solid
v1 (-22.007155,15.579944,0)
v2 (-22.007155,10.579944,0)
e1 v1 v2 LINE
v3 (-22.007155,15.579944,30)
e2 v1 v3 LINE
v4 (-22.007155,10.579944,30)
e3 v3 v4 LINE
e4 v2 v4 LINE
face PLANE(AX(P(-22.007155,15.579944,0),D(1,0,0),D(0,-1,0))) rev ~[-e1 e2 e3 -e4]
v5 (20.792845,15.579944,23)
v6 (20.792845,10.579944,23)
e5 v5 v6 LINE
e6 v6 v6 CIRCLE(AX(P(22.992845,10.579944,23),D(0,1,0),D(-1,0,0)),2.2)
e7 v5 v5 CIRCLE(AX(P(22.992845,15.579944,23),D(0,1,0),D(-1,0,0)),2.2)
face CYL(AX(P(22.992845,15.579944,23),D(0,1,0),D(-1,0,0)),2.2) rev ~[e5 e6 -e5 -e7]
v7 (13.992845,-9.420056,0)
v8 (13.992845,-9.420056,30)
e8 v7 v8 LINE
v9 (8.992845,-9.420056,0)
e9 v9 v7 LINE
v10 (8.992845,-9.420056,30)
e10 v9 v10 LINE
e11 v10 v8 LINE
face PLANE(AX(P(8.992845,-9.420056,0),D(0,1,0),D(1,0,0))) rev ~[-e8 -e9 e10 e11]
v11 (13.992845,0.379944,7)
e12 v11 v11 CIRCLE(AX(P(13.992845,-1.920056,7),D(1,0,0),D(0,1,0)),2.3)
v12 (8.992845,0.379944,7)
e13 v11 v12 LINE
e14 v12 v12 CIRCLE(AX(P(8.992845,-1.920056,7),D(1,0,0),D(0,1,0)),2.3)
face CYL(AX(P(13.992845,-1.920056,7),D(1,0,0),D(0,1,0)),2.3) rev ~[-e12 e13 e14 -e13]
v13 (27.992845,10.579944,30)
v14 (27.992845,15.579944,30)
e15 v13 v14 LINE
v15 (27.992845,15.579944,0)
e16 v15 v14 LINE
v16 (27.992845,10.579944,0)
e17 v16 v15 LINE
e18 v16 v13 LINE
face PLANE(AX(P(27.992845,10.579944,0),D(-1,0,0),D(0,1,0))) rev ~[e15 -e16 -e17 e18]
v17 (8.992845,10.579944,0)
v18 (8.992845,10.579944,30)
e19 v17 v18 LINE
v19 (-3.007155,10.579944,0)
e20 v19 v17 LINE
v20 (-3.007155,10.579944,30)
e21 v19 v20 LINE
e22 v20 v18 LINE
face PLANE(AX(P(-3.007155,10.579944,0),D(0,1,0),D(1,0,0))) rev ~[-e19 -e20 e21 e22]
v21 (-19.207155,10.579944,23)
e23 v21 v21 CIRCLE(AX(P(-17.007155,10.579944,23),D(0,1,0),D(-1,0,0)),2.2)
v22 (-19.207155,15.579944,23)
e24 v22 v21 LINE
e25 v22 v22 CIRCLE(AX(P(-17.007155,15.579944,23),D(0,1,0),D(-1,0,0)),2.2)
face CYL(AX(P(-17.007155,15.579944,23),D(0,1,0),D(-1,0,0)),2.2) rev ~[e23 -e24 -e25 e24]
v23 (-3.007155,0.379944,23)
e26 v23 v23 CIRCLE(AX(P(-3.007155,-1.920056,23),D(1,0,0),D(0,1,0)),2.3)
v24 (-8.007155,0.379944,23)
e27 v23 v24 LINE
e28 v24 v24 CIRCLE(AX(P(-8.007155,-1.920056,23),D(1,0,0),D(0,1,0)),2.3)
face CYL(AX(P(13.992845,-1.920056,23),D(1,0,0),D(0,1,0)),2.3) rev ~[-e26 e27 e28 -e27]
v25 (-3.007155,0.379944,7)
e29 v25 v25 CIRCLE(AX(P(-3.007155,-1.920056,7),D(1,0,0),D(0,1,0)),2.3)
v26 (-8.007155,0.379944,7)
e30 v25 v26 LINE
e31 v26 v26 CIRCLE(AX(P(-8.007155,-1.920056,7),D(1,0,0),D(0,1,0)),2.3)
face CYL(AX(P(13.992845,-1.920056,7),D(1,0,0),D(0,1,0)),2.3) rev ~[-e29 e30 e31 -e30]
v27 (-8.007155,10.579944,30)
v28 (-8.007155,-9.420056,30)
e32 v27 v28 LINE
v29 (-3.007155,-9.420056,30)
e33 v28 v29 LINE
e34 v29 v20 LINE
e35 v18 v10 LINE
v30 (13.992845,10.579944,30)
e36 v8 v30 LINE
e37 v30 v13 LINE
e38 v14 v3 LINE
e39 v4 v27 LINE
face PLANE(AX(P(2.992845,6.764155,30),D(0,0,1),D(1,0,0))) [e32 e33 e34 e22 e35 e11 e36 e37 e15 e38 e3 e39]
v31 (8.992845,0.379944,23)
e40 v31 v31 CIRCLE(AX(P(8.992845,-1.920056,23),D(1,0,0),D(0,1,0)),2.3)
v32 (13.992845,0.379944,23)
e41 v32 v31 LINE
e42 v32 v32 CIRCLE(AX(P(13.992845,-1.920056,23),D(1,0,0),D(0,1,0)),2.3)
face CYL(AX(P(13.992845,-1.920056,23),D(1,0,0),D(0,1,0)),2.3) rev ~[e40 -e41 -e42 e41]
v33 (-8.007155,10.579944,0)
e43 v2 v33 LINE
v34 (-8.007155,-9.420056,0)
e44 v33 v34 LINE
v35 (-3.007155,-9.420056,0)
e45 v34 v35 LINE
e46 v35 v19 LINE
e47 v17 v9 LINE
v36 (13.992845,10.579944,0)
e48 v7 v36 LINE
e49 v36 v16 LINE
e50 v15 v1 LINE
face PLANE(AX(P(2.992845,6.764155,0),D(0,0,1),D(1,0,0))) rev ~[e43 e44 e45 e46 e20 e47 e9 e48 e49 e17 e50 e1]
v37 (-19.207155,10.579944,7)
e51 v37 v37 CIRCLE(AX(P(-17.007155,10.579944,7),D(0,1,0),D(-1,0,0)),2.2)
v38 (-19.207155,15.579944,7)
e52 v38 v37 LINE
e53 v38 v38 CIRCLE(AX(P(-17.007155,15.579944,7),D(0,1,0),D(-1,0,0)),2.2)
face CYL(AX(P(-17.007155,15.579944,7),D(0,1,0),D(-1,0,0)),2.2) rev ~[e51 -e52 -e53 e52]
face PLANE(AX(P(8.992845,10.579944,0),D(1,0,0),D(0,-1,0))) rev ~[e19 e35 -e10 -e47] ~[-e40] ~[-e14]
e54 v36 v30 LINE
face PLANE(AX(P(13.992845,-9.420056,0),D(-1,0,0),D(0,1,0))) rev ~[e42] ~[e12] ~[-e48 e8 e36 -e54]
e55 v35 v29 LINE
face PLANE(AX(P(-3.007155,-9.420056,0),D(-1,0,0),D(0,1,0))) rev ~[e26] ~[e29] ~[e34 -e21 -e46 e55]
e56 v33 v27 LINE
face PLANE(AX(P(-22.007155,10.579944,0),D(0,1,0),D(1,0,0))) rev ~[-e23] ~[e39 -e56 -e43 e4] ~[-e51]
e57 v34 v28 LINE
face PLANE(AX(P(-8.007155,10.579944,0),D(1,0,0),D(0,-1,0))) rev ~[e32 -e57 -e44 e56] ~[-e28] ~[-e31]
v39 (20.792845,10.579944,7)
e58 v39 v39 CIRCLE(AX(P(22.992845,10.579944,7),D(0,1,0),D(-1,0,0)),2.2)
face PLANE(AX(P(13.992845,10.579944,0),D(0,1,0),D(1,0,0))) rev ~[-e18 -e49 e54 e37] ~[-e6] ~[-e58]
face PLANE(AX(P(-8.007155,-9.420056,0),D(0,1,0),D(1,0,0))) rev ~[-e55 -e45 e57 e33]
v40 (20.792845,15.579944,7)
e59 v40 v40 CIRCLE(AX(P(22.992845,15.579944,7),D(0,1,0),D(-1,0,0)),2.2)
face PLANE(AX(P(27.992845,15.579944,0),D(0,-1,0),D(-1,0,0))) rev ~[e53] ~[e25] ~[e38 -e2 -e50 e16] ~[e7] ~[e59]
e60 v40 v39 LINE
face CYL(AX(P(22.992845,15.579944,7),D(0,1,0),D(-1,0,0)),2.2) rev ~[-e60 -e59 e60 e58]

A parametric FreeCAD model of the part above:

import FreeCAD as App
import Part
import Sketcher


def add_polygon(sketch, points):
    """Adds a closed chain of lines whose ends are joined by coincident constraints."""
    first, n = sketch.GeometryCount, len(points)
    for a, b in zip(points, points[1:] + points[:1]):
        sketch.addGeometry(Part.LineSegment(App.Vector(*a, 0), App.Vector(*b, 0)), False)
    for i in range(n):
        sketch.addConstraint(Sketcher.Constraint("Coincident", first + i, 2, first + (i + 1) % n, 1))

doc = App.newDocument("Part")
body = doc.addObject("PartDesign::Body", "Body")

sketch1 = body.newObject("Sketcher::SketchObject", "Sketch")
sketch1.AttachmentSupport = (doc.getObject("XY_Plane"), [""])
sketch1.MapMode = "FlatFace"
add_polygon(sketch1, [(27.992845, 15.579944), (-22.007155, 15.579944), (-22.007155, 10.579944), (-8.007155, 10.579944), (-8.007155, -9.420056), (-3.007155, -9.420056), (-3.007155, 10.579944), (8.992845, 10.579944), (8.992845, -9.420056), (13.992845, -9.420056), (13.992845, 10.579944), (27.992845, 10.579944)])
sketch1.addConstraint(Sketcher.Constraint("Horizontal", 0))
sketch1.addConstraint(Sketcher.Constraint("Vertical", 1))
sketch1.addConstraint(Sketcher.Constraint("Horizontal", 2))
sketch1.addConstraint(Sketcher.Constraint("Vertical", 3))
sketch1.addConstraint(Sketcher.Constraint("Horizontal", 4))
sketch1.addConstraint(Sketcher.Constraint("Vertical", 5))
sketch1.addConstraint(Sketcher.Constraint("Horizontal", 6))
sketch1.addConstraint(Sketcher.Constraint("Vertical", 7))
sketch1.addConstraint(Sketcher.Constraint("Horizontal", 8))
sketch1.addConstraint(Sketcher.Constraint("Vertical", 9))
sketch1.addConstraint(Sketcher.Constraint("Horizontal", 10))
sketch1.addConstraint(Sketcher.Constraint("Vertical", 11))
sketch1.addConstraint(Sketcher.Constraint("Horizontal", 2, 2, 5, 2))
sketch1.addConstraint(Sketcher.Constraint("Horizontal", 4, 2, 7, 2))
sketch1.addConstraint(Sketcher.Constraint("Horizontal", 6, 2, 9, 2))
sketch1.addConstraint(Sketcher.Constraint("Equal", 4, 8))
sketch1.addConstraint(Sketcher.Constraint("Equal", 2, 10))
sketch1.addConstraint(Sketcher.Constraint("Equal", 8, 1))
sketch1.addConstraint(Sketcher.Constraint("DistanceX", 0, 2, 0, 1, 50.0))
sketch1.addConstraint(Sketcher.Constraint("DistanceX", 2, 1, 2, 2, 14.0))
sketch1.addConstraint(Sketcher.Constraint("DistanceX", 4, 1, 4, 2, 5.0))
sketch1.addConstraint(Sketcher.Constraint("DistanceY", 3, 2, 3, 1, 20.0))
sketch1.addConstraint(Sketcher.Constraint("DistanceX", 0, 2, -1, 1, 22.007155))
sketch1.addConstraint(Sketcher.Constraint("DistanceY", -1, 1, 0, 2, 15.579944))
pad1 = body.newObject("PartDesign::Pad", "Pad")
pad1.Profile = sketch1
pad1.Length = 30

sketch2 = body.newObject("Sketcher::SketchObject", "Sketch001")
sketch2.AttachmentSupport = (doc.getObject("YZ_Plane"), [""])
sketch2.MapMode = "FlatFace"
sketch2.AttachmentOffset = App.Placement(App.Vector(0, 0, 13.992845), App.Rotation())
sketch2.addGeometry(Part.Circle(App.Vector(-1.920056, 7, 0), App.Vector(0, 0, 1), 2.3), False)
sketch2.addGeometry(Part.Circle(App.Vector(-1.920056, 23, 0), App.Vector(0, 0, 1), 2.3), False)
sketch2.addConstraint(Sketcher.Constraint("Equal", 0, 1))
sketch2.addConstraint(Sketcher.Constraint("Vertical", 0, 3, 1, 3))
sketch2.addConstraint(Sketcher.Constraint("Diameter", 0, 4.6))
sketch2.addConstraint(Sketcher.Constraint("DistanceY", -1, 1, 0, 3, 7.0))
sketch2.addConstraint(Sketcher.Constraint("DistanceY", -1, 1, 1, 3, 23.0))
sketch2.addConstraint(Sketcher.Constraint("DistanceX", 0, 3, -1, 1, 1.920056))
pocket1 = body.newObject("PartDesign::Pocket", "Pocket")
pocket1.Profile = sketch2
pocket1.Type = "ThroughAll"

sketch3 = body.newObject("Sketcher::SketchObject", "Sketch002")
sketch3.AttachmentSupport = (doc.getObject("XZ_Plane"), [""])
sketch3.MapMode = "FlatFace"
sketch3.AttachmentOffset = App.Placement(App.Vector(0, 0, -15.579944), App.Rotation())
sketch3.addGeometry(Part.Circle(App.Vector(22.992845, 7, 0), App.Vector(0, 0, 1), 2.2), False)
sketch3.addGeometry(Part.Circle(App.Vector(-17.007155, 7, 0), App.Vector(0, 0, 1), 2.2), False)
sketch3.addGeometry(Part.Circle(App.Vector(22.992845, 23, 0), App.Vector(0, 0, 1), 2.2), False)
sketch3.addGeometry(Part.Circle(App.Vector(-17.007155, 23, 0), App.Vector(0, 0, 1), 2.2), False)
sketch3.addConstraint(Sketcher.Constraint("Equal", 0, 1))
sketch3.addConstraint(Sketcher.Constraint("Equal", 1, 2))
sketch3.addConstraint(Sketcher.Constraint("Equal", 2, 3))
sketch3.addConstraint(Sketcher.Constraint("Horizontal", 0, 3, 1, 3))
sketch3.addConstraint(Sketcher.Constraint("Horizontal", 2, 3, 3, 3))
sketch3.addConstraint(Sketcher.Constraint("Vertical", 0, 3, 2, 3))
sketch3.addConstraint(Sketcher.Constraint("Vertical", 1, 3, 3, 3))
sketch3.addConstraint(Sketcher.Constraint("Diameter", 0, 4.4))
sketch3.addConstraint(Sketcher.Constraint("DistanceY", -1, 1, 0, 3, 7.0))
sketch3.addConstraint(Sketcher.Constraint("DistanceY", -1, 1, 2, 3, 23.0))
sketch3.addConstraint(Sketcher.Constraint("DistanceX", 1, 3, 0, 3, 40.0))
sketch3.addConstraint(Sketcher.Constraint("DistanceX", -1, 1, 0, 3, 22.992845))
pocket2 = body.newObject("PartDesign::Pocket", "Pocket001")
pocket2.Profile = sketch3
pocket2.Type = "ThroughAll"
pocket2.Reversed = True

doc.recompute()
